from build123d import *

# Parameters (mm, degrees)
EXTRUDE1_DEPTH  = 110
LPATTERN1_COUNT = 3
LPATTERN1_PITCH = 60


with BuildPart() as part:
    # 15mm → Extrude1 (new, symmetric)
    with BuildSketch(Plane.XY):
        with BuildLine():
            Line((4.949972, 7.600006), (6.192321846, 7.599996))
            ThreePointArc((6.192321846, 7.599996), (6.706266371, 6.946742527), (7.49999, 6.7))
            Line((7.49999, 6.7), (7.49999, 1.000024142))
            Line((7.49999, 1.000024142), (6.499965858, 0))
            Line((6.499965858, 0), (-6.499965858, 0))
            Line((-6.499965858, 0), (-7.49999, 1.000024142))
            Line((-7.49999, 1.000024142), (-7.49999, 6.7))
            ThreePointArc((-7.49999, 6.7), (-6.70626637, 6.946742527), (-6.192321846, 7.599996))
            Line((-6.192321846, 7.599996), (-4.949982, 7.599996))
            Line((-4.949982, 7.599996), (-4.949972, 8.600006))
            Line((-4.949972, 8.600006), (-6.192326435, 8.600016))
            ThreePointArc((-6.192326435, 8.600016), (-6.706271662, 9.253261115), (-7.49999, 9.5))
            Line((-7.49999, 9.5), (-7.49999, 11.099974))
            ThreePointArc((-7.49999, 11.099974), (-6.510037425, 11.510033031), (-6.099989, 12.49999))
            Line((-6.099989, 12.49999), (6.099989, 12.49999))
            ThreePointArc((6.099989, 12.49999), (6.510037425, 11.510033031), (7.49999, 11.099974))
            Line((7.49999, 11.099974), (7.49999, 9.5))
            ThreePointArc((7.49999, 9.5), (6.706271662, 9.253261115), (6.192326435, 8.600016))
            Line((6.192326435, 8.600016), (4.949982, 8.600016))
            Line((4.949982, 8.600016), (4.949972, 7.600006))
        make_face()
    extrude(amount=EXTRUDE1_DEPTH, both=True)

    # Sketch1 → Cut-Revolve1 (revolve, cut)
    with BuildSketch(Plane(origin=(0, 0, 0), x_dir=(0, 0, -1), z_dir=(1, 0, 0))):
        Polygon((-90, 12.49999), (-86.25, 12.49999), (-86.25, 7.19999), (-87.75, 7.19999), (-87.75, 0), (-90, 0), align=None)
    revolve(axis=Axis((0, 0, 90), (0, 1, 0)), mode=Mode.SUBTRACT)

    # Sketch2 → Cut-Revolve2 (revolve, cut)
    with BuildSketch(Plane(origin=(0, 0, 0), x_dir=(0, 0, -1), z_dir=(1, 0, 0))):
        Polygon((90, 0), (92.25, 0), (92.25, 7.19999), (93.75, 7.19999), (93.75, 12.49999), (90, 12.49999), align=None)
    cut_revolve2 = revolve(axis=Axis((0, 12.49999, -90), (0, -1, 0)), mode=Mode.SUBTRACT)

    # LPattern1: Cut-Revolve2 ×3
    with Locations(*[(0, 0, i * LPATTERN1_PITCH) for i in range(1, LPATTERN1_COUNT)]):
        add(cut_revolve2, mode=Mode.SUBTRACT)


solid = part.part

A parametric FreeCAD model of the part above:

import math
import FreeCAD as App
import Part
import Sketcher
from FreeCAD import Vector

doc = App.newDocument("Part")
body = doc.addObject("PartDesign::Body", "Body")

# Sketch on XY plane
sketch1 = doc.addObject("Sketcher::SketchObject", "Sketch")
body.addObject(sketch1)
sketch1.AttachmentSupport = (doc.XY_Plane, [""])
sketch1.MapMode = "FlatFace"
sketch1.addGeometry(Part.LineSegment(Vector(6.192322, 7.599996, 0), Vector(4.949972, 7.600006, 0)), False)
sketch1.addGeometry(Part.LineSegment(Vector(4.949972, 7.600006, 0), Vector(4.949982, 8.600016, 0)), False)
sketch1.addGeometry(Part.LineSegment(Vector(4.949982, 8.600016, 0), Vector(6.192326, 8.600016, 0)), False)
sketch1.addGeometry(Part.ArcOfCircle(Part.Circle(Vector(7.49999, 8.1, 0), Vector(0, 0, 1), 1.4), math.radians(90), math.radians(159.074467)), False)
sketch1.addGeometry(Part.LineSegment(Vector(7.49999, 9.5, 0), Vector(7.49999, 11.099974, 0)), False)
sketch1.addGeometry(Part.ArcOfCircle(Part.Circle(Vector(7.5, 12.499985, 0), Vector(0, 0, 1), 1.400011), math.radians(179.999795), math.radians(269.999591)), False)
sketch1.addGeometry(Part.LineSegment(Vector(6.099989, 12.49999, 0), Vector(-6.099989, 12.49999, 0)), False)
sketch1.addGeometry(Part.ArcOfCircle(Part.Circle(Vector(-7.5, 12.499985, 0), Vector(0, 0, 1), 1.400011), math.radians(-89.999591), math.radians(0.000205)), False)
sketch1.addGeometry(Part.LineSegment(Vector(-7.49999, 11.099974, 0), Vector(-7.49999, 9.5, 0)), False)
sketch1.addGeometry(Part.ArcOfCircle(Part.Circle(Vector(-7.49999, 8.1, 0), Vector(0, 0, 1), 1.4), math.radians(20.925533), math.radians(90)), False)
sketch1.addGeometry(Part.LineSegment(Vector(-6.192326, 8.600016, 0), Vector(-4.949972, 8.600006, 0)), False)
sketch1.addGeometry(Part.LineSegment(Vector(-4.949972, 8.600006, 0), Vector(-4.949982, 7.599996, 0)), False)
sketch1.addGeometry(Part.LineSegment(Vector(-4.949982, 7.599996, 0), Vector(-6.192322, 7.599996, 0)), False)
sketch1.addGeometry(Part.ArcOfCircle(Part.Circle(Vector(-7.49999, 8.1, 0), Vector(0, 0, 1), 1.4), math.radians(-90), math.radians(-20.925008)), False)
sketch1.addGeometry(Part.LineSegment(Vector(-7.49999, 6.7, 0), Vector(-7.49999, 1.000024, 0)), False)
sketch1.addGeometry(Part.LineSegment(Vector(-7.49999, 1.000024, 0), Vector(-6.499966, 0, 0)), False)
sketch1.addGeometry(Part.LineSegment(Vector(-6.499966, 0, 0), Vector(6.499966, 0, 0)), False)
sketch1.addGeometry(Part.LineSegment(Vector(6.499966, 0, 0), Vector(7.49999, 1.000024, 0)), False)
sketch1.addGeometry(Part.LineSegment(Vector(7.49999, 1.000024, 0), Vector(7.49999, 6.7, 0)), False)
sketch1.addGeometry(Part.ArcOfCircle(Part.Circle(Vector(7.49999, 8.1, 0), Vector(0, 0, 1), 1.4), math.radians(-159.074992), math.radians(-90)), False)
sketch1.addConstraint(Sketcher.Constraint("Coincident", 0, 2, 1, 1))
sketch1.addConstraint(Sketcher.Constraint("Coincident", 1, 2, 2, 1))
sketch1.addConstraint(Sketcher.Constraint("Coincident", 2, 2, 3, 2))
sketch1.addConstraint(Sketcher.Constraint("Coincident", 3, 1, 4, 1))
sketch1.addConstraint(Sketcher.Constraint("Coincident", 4, 2, 5, 2))
sketch1.addConstraint(Sketcher.Constraint("Coincident", 5, 1, 6, 1))
sketch1.addConstraint(Sketcher.Constraint("Coincident", 6, 2, 7, 2))
sketch1.addConstraint(Sketcher.Constraint("Coincident", 7, 1, 8, 1))
sketch1.addConstraint(Sketcher.Constraint("Coincident", 8, 2, 9, 2))
sketch1.addConstraint(Sketcher.Constraint("Coincident", 9, 1, 10, 1))
sketch1.addConstraint(Sketcher.Constraint("Coincident", 10, 2, 11, 1))
sketch1.addConstraint(Sketcher.Constraint("Coincident", 11, 2, 12, 1))
sketch1.addConstraint(Sketcher.Constraint("Coincident", 12, 2, 13, 2))
sketch1.addConstraint(Sketcher.Constraint("Coincident", 13, 1, 14, 1))
sketch1.addConstraint(Sketcher.Constraint("Coincident", 14, 2, 15, 1))
sketch1.addConstraint(Sketcher.Constraint("Coincident", 15, 2, 16, 1))
sketch1.addConstraint(Sketcher.Constraint("Coincident", 16, 2, 17, 1))
sketch1.addConstraint(Sketcher.Constraint("Coincident", 17, 2, 18, 1))
sketch1.addConstraint(Sketcher.Constraint("Coincident", 18, 2, 19, 2))
sketch1.addConstraint(Sketcher.Constraint("Coincident", 19, 1, 0, 1))
sketch1.addConstraint(Sketcher.Constraint("Horizontal", 2))
sketch1.addConstraint(Sketcher.Constraint("Vertical", 4))
sketch1.addConstraint(Sketcher.Constraint("Horizontal", 6))
sketch1.addConstraint(Sketcher.Constraint("Vertical", 8))
sketch1.addConstraint(Sketcher.Constraint("Horizontal", 12))
sketch1.addConstraint(Sketcher.Constraint("Vertical", 14))
sketch1.addConstraint(Sketcher.Constraint("Horizontal", 16))
sketch1.addConstraint(Sketcher.Constraint("Vertical", 18))
sketch1.addConstraint(Sketcher.Constraint("Coincident", 13, 3, 9, 3))
sketch1.addConstraint(Sketcher.Constraint("Coincident", 19, 3, 3, 3))
sketch1.addConstraint(Sketcher.Constraint("Equal", 5, 7))
sketch1.addConstraint(Sketcher.Constraint("Equal", 3, 9))
sketch1.addConstraint(Sketcher.Constraint("Equal", 9, 13))
sketch1.addConstraint(Sketcher.Constraint("Equal", 13, 19))
sketch1.addConstraint(Sketcher.Constraint("Symmetric", 15, 2, 16, 2, -1, 1))
sketch1.addConstraint(Sketcher.Constraint("Symmetric", 5, 3, 7, 3, -2))
sketch1.addConstraint(Sketcher.Constraint("Symmetric", 3, 3, 9, 3, -2))
sketch1.addConstraint(Sketcher.Constraint("Symmetric", 14, 2, 17, 2, -2))
sketch1.addConstraint(Sketcher.Constraint("Perpendicular", 0, 1))
sketch1.addConstraint(Sketcher.Constraint("Perpendicular", 1, 10))
sketch1.addConstraint(Sketcher.Constraint("Perpendicular", 10, 11))
sketch1.addConstraint(Sketcher.Constraint("Perpendicular", 15, 17))
sketch1.addConstraint(Sketcher.Constraint("Horizontal", 2, 2, 9, 1))
sketch1.addConstraint(Sketcher.Constraint("Horizontal", 12, 2, 19, 1))
sketch1.addConstraint(Sketcher.Constraint("Vertical", 19, 3, 3, 1))
sketch1.addConstraint(Sketcher.Constraint("Vertical", 13, 3, 7, 1))
sketch1.addConstraint(Sketcher.Constraint("Vertical", 8, 2, 13, 1))
sketch1.addConstraint(Sketcher.Constraint("Radius", 3, 1.4))
sketch1.addConstraint(Sketcher.Constraint("DistanceX", 7, 3, 5, 3, 15.0))
sketch1.addConstraint(Sketcher.Constraint("DistanceY", -1, 1, 3, 3, 8.1))
sketch1.addConstraint(Sketcher.Constraint("DistanceX", 5, 1, 4, 2, 1.400001))
sketch1.addConstraint(Sketcher.Constraint("Radius", 5, 1.400011))
sketch1.addConstraint(Sketcher.Constraint("DistanceX", 12, 2, 12, 1, 1.24234))
sketch1.addConstraint(Sketcher.Constraint("DistanceX", 16, 1, 16, 2, 12.999932))
sketch1.addConstraint(Sketcher.Constraint("Distance", 0, 1.24235))
sketch1.addConstraint(Sketcher.Constraint("Distance", 1, 1.00001))
sketch1.addConstraint(Sketcher.Constraint("DistanceX", 2, 1, 2, 2, 1.242344))
sketch1.addConstraint(Sketcher.Constraint("DistanceY", 4, 1, 4, 2, 1.599974))
sketch1.addConstraint(Sketcher.Constraint("DistanceX", -1, 1, 0, 2, 4.949972))
sketch1.addConstraint(Sketcher.Constraint("DistanceY", -1, 1, 5, 1, 12.49999))
pad1 = doc.addObject("PartDesign::Pad", "Pad")
body.addObject(pad1)
pad1.Profile = sketch1
pad1.Length = 220
pad1.Midplane = True

# Sketch on YZ plane
sketch2 = doc.addObject("Sketcher::SketchObject", "Sketch001")
body.addObject(sketch2)
sketch2.AttachmentSupport = (doc.YZ_Plane, [""])
sketch2.MapMode = "FlatFace"
sketch2.addGeometry(Part.LineSegment(Vector(12.49999, 86.25, 0), Vector(12.49999, 90, 0)), False)
sketch2.addGeometry(Part.LineSegment(Vector(12.49999, 90, 0), Vector(0, 90, 0)), False)
sketch2.addGeometry(Part.LineSegment(Vector(0, 90, 0), Vector(0, 87.75, 0)), False)
sketch2.addGeometry(Part.LineSegment(Vector(0, 87.75, 0), Vector(7.19999, 87.75, 0)), False)
sketch2.addGeometry(Part.LineSegment(Vector(7.19999, 87.75, 0), Vector(7.19999, 86.25, 0)), False)
sketch2.addGeometry(Part.LineSegment(Vector(7.19999, 86.25, 0), Vector(12.49999, 86.25, 0)), False)
sketch2.addGeometry(Part.LineSegment(Vector(0, 90, 0), Vector(12.49999, 90, 0)), True)  # axis
sketch2.addConstraint(Sketcher.Constraint("Coincident", 0, 2, 1, 1))
sketch2.addConstraint(Sketcher.Constraint("Coincident", 1, 2, 2, 1))
sketch2.addConstraint(Sketcher.Constraint("Coincident", 2, 2, 3, 1))
sketch2.addConstraint(Sketcher.Constraint("Coincident", 3, 2, 4, 1))
sketch2.addConstraint(Sketcher.Constraint("Coincident", 4, 2, 5, 1))
sketch2.addConstraint(Sketcher.Constraint("Coincident", 5, 2, 0, 1))
sketch2.addConstraint(Sketcher.Constraint("Vertical", 0))
sketch2.addConstraint(Sketcher.Constraint("Horizontal", 1))
sketch2.addConstraint(Sketcher.Constraint("Vertical", 2))
sketch2.addConstraint(Sketcher.Constraint("Horizontal", 3))
sketch2.addConstraint(Sketcher.Constraint("Vertical", 4))
sketch2.addConstraint(Sketcher.Constraint("Horizontal", 5))
sketch2.addConstraint(Sketcher.Constraint("Horizontal", 6))
sketch2.addConstraint(Sketcher.Constraint("Coincident", 6, 1, 1, 2))
sketch2.addConstraint(Sketcher.Constraint("PointOnObject", 1, 2, -2))
sketch2.addConstraint(Sketcher.Constraint("Vertical", 5, 2, 6, 2))
sketch2.addConstraint(Sketcher.Constraint("DistanceX", 5, 1, 5, 2, 5.3))
sketch2.addConstraint(Sketcher.Constraint("DistanceY", 4, 2, 4, 1, 1.5))
sketch2.addConstraint(Sketcher.Constraint("DistanceY", -1, 1, 0, 2, 90.0))
sketch2.addConstraint(Sketcher.Constraint("DistanceY", 0, 1, 0, 2, 3.75))
sketch2.addConstraint(Sketcher.Constraint("DistanceX", 1, 2, 1, 1, 12.49999))
groove = doc.addObject("PartDesign::Groove", "Groove")
body.addObject(groove)
groove.Profile = sketch2
groove.ReferenceAxis = (sketch2, ["Axis0"])
groove.Angle = 360

# Sketch on YZ plane
sketch3 = doc.addObject("Sketcher::SketchObject", "Sketch002")
body.addObject(sketch3)
sketch3.AttachmentSupport = (doc.YZ_Plane, [""])
sketch3.MapMode = "FlatFace"
sketch3.addGeometry(Part.LineSegment(Vector(0, -90, 0), Vector(0, -92.25, 0)), False)
sketch3.addGeometry(Part.LineSegment(Vector(0, -92.25, 0), Vector(7.19999, -92.25, 0)), False)
sketch3.addGeometry(Part.LineSegment(Vector(7.19999, -92.25, 0), Vector(7.19999, -93.75, 0)), False)
sketch3.addGeometry(Part.LineSegment(Vector(7.19999, -93.75, 0), Vector(12.49999, -93.75, 0)), False)
sketch3.addGeometry(Part.LineSegment(Vector(12.49999, -93.75, 0), Vector(12.49999, -90, 0)), False)
sketch3.addGeometry(Part.LineSegment(Vector(12.49999, -90, 0), Vector(0, -90, 0)), False)
sketch3.addGeometry(Part.LineSegment(Vector(12.49999, -90, 0), Vector(0, -90, 0)), True)  # axis
sketch3.addConstraint(Sketcher.Constraint("Coincident", 0, 2, 1, 1))
sketch3.addConstraint(Sketcher.Constraint("Coincident", 1, 2, 2, 1))
sketch3.addConstraint(Sketcher.Constraint("Coincident", 2, 2, 3, 1))
sketch3.addConstraint(Sketcher.Constraint("Coincident", 3, 2, 4, 1))
sketch3.addConstraint(Sketcher.Constraint("Coincident", 4, 2, 5, 1))
sketch3.addConstraint(Sketcher.Constraint("Coincident", 5, 2, 0, 1))
sketch3.addConstraint(Sketcher.Constraint("Vertical", 0))
sketch3.addConstraint(Sketcher.Constraint("Horizontal", 1))
sketch3.addConstraint(Sketcher.Constraint("Vertical", 2))
sketch3.addConstraint(Sketcher.Constraint("Horizontal", 3))
sketch3.addConstraint(Sketcher.Constraint("Vertical", 4))
sketch3.addConstraint(Sketcher.Constraint("Horizontal", 5))
sketch3.addConstraint(Sketcher.Constraint("Horizontal", 6))
sketch3.addConstraint(Sketcher.Constraint("Coincident", 6, 1, 4, 2))
sketch3.addConstraint(Sketcher.Constraint("PointOnObject", 0, 2, -2))
sketch3.addConstraint(Sketcher.Constraint("PointOnObject", 6, 2, -2))
sketch3.addConstraint(Sketcher.Constraint("DistanceX", 3, 1, 3, 2, 5.3))
sketch3.addConstraint(Sketcher.Constraint("DistanceY", 2, 2, 2, 1, 1.5))
sketch3.addConstraint(Sketcher.Constraint("DistanceY", 4, 2, -1, 1, 90.0))
sketch3.addConstraint(Sketcher.Constraint("DistanceY", 0, 2, 0, 1, 2.25))
sketch3.addConstraint(Sketcher.Constraint("DistanceX", 1, 1, 1, 2, 7.19999))
groove2 = doc.addObject("PartDesign::Groove", "Groove001")
body.addObject(groove2)
groove2.Profile = sketch3
groove2.ReferenceAxis = (sketch3, ["Axis0"])
groove2.Angle = 360
doc.recompute()

linearpattern = doc.addObject("PartDesign::LinearPattern", "LinearPattern")
body.addObject(linearpattern)
linearpattern.Originals = [groove2]
linearpattern.Direction = (doc.Z_Axis, [""])
linearpattern.Mode = "offset"
linearpattern.Offset = 60
linearpattern.Occurrences = 3
body.Tip = linearpattern

doc.recompute()
